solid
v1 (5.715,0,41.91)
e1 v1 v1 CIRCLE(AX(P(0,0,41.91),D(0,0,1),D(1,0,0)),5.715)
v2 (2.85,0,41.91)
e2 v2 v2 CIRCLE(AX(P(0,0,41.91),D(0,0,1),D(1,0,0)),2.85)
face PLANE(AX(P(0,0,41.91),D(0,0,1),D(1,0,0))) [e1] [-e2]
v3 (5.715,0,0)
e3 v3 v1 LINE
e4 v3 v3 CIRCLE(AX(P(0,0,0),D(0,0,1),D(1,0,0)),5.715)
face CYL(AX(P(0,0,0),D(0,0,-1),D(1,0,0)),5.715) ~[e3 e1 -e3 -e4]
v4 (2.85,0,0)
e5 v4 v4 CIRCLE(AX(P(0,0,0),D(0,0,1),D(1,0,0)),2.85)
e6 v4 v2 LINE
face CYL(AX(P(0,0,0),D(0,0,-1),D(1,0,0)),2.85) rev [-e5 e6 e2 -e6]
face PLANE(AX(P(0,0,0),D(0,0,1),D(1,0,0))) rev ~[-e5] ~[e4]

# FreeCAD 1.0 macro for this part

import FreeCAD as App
import Part
import Sketcher
from FreeCAD import Vector
Q = App.Units.Quantity

doc = App.newDocument("Part")
body = doc.addObject("PartDesign::Body", "Body")

# Sketch on XY plane
sketch1 = body.newObject("Sketcher::SketchObject", "Sketch")
sketch1.AttachmentSupport = (doc.getObject("XY_Plane"), [""])
sketch1.MapMode = "FlatFace"
sketch1.addGeometry([
    Part.Circle(Vector(0, 0, 0), Vector(0, 0, 1), 5.7),
    Part.Circle(Vector(0, 0, 0), Vector(0, 0, 1), 2.9),
], False)
sketch1.addConstraint([
    Sketcher.Constraint("Coincident", 0, 3, -1, 1),
    Sketcher.Constraint("Coincident", 1, 3, -1, 1),
    Sketcher.Constraint("Diameter", 0, Q("0.45 in")),
    Sketcher.Constraint("Diameter", 1, Q("0.2244 in")),
])
pad1 = body.newObject("PartDesign::Pad", "Pad")
pad1.Profile = sketch1
pad1.Length = Q("1.65 in")

doc.recompute()
